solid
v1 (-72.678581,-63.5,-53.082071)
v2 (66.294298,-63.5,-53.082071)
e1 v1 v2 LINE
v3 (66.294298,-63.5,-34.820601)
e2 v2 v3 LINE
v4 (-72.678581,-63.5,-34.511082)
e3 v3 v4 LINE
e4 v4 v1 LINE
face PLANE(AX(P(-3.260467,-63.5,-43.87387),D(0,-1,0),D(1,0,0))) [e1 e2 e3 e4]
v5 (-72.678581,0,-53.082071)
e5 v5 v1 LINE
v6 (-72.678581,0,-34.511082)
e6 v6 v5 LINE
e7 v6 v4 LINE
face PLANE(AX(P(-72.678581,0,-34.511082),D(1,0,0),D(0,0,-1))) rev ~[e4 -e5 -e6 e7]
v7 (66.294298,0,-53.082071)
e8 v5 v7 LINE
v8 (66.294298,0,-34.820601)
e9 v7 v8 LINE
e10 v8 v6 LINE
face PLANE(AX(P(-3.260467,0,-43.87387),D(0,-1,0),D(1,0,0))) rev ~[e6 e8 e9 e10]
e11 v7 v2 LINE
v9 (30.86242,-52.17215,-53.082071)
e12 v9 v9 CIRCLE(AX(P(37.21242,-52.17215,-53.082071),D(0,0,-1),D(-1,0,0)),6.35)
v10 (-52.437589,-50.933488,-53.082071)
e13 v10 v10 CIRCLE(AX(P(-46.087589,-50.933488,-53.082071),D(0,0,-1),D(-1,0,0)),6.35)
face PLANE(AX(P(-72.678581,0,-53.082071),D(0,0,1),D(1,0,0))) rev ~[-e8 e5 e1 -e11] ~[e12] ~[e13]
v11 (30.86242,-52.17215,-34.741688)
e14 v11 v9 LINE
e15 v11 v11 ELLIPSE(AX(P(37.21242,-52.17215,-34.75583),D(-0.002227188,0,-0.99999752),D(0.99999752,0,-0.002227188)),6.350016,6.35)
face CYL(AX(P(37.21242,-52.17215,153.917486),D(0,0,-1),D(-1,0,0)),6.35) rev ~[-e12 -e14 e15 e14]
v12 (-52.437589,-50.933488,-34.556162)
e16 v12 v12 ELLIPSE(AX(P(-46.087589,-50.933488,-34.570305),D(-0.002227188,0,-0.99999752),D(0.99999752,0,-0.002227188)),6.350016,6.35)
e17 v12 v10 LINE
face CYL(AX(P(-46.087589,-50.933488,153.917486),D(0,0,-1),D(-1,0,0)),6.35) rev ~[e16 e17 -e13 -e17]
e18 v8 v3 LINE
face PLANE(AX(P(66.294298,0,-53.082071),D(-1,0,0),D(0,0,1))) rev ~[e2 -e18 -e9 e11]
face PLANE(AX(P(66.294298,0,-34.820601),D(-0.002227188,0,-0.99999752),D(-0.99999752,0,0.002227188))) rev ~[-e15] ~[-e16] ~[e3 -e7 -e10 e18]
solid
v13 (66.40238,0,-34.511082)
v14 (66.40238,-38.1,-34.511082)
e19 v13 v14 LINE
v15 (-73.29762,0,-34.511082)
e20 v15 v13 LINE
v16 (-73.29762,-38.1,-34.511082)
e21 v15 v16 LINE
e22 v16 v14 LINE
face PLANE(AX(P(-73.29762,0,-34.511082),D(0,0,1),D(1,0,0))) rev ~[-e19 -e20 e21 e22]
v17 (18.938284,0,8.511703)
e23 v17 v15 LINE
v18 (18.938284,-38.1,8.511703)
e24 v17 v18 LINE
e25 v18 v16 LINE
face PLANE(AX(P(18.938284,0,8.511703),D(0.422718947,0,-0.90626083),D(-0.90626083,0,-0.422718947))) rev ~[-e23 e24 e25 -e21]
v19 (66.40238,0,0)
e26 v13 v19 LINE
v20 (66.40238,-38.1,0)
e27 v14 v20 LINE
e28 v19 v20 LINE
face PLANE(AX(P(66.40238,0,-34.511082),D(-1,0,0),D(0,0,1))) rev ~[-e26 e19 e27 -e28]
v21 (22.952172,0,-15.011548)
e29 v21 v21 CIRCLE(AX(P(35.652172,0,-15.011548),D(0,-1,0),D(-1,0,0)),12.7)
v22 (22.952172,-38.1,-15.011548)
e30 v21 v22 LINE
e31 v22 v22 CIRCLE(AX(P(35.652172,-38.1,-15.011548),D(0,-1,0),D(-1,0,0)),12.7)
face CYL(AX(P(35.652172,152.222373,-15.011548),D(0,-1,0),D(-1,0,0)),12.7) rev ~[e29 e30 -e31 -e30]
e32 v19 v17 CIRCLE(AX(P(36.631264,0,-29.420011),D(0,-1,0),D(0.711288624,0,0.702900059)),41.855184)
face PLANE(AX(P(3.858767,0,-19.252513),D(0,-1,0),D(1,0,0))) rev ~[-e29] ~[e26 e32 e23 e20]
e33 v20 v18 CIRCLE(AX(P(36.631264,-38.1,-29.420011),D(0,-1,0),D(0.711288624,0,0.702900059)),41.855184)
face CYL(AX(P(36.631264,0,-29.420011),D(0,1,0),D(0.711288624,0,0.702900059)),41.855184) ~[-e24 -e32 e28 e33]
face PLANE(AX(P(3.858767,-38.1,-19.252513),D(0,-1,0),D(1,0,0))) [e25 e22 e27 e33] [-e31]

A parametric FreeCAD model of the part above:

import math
import FreeCAD as App
import Part
import Sketcher
Q = App.Units.Quantity

doc = App.newDocument("Part")
body = doc.addObject("PartDesign::Body", "Body")

sketch1 = doc.addObject("Sketcher::SketchObject", "Sketch")
body.addObject(sketch1)
sketch1.AttachmentSupport = (doc.XZ_Plane, [""])
sketch1.MapMode = "FlatFace"
sketch1.addGeometry([
    Part.LineSegment(App.Vector(19, 9, 0), App.Vector(-73, -35, 0)),
    Part.LineSegment(App.Vector(-73, -35, 0), App.Vector(66, -35, 0)),
    Part.LineSegment(App.Vector(66, -35, 0), App.Vector(66, 0, 0)),
    Part.ArcOfCircle(Part.Circle(App.Vector(37, -29, 0), App.Vector(0, 0, 1), 42), math.radians(45), math.radians(115)),
], False)
sketch1.addConstraint([
    Sketcher.Constraint("Coincident", 0, 2, 1, 1),
    Sketcher.Constraint("Coincident", 1, 2, 2, 1),
    Sketcher.Constraint("Coincident", 2, 2, 3, 1),
    Sketcher.Constraint("Tangent", 3, 2, 0, 1),
    Sketcher.Constraint("Horizontal", 1),
    Sketcher.Constraint("Vertical", 2),
    Sketcher.Constraint("PointOnObject", 2, 2, -1),
    Sketcher.Constraint("DistanceX", 1, 1, 1, 2, Q("5.5 in")),
    Sketcher.Constraint("Radius", 3, 41.855184),
    Sketcher.Constraint("DistanceY", 2, 1, 2, 2, 34.511082),
    Sketcher.Constraint("DistanceY", 3, 3, -1, 1, 29.420011),
    Sketcher.Constraint("DistanceX", 0, 2, -1, 1, 73.29762),
])
pad1 = doc.addObject("PartDesign::Pad", "Pad")
body.addObject(pad1)
pad1.Profile = sketch1
pad1.Length = Q("1.5 in")

sketch2 = doc.addObject("Sketcher::SketchObject", "Sketch001")
body.addObject(sketch2)
sketch2.AttachmentSupport = (doc.XZ_Plane, [""])
sketch2.MapMode = "FlatFace"
sketch2.addGeometry(Part.Circle(App.Vector(36, -15, 0), App.Vector(0, 0, 1), 13), False)
sketch2.addConstraint([
    Sketcher.Constraint("Diameter", 0, Q("1 in")),
    Sketcher.Constraint("DistanceX", -1, 1, 0, 3, 35.652172),
    Sketcher.Constraint("DistanceY", 0, 3, -1, 1, 15.011548),
])
doc.recompute()
hole = doc.addObject("PartDesign::Hole", "Hole")
body.addObject(hole)
hole.Profile = sketch2
hole.ThreadType = "None"
hole.Diameter = Q("1 in")
hole.DepthType = "ThroughAll"
hole.Reversed = True
body2 = doc.addObject("PartDesign::Body", "Body001")

sketch3 = doc.addObject("Sketcher::SketchObject", "Sketch002")
body2.addObject(sketch3)
sketch3.AttachmentSupport = (doc.getObject("XZ_Plane001"), [""])
sketch3.MapMode = "FlatFace"
sketch3.addGeometry([
    Part.LineSegment(App.Vector(66, -53, 0), App.Vector(66, -35, 0)),
    Part.LineSegment(App.Vector(66, -35, 0), App.Vector(-73, -35, 0)),
    Part.LineSegment(App.Vector(-73, -35, 0), App.Vector(-73, -53, 0)),
    Part.LineSegment(App.Vector(-73, -53, 0), App.Vector(66, -53, 0)),
], False)
sketch3.addConstraint([
    Sketcher.Constraint("Coincident", 0, 2, 1, 1),
    Sketcher.Constraint("Coincident", 1, 2, 2, 1),
    Sketcher.Constraint("Coincident", 2, 2, 3, 1),
    Sketcher.Constraint("Coincident", 3, 2, 0, 1),
    Sketcher.Constraint("Vertical", 0),
    Sketcher.Constraint("Vertical", 2),
    Sketcher.Constraint("Horizontal", 3),
    Sketcher.Constraint("DistanceX", 3, 1, 3, 2, 138.972878),
    Sketcher.Constraint("DistanceY", 0, 1, 0, 2, 18.26147),
    Sketcher.Constraint("DistanceY", 2, 2, 2, 1, 18.570989),
    Sketcher.Constraint("DistanceY", 0, 2, -1, 1, 34.820601),
    Sketcher.Constraint("DistanceX", 1, 2, -1, 1, 72.678581),
])
pad2 = doc.addObject("PartDesign::Pad", "Pad001")
body2.addObject(pad2)
pad2.Profile = sketch3
pad2.Length = Q("2.5 in")

sketch4 = doc.addObject("Sketcher::SketchObject", "Sketch003")
body2.addObject(sketch4)
sketch4.AttachmentSupport = (doc.getObject("XY_Plane001"), [""])
sketch4.MapMode = "FlatFace"
sketch4.addGeometry(Part.Circle(App.Vector(-46, -51, 0), App.Vector(0, 0, 1), 6), False)
sketch4.addConstraint([
    Sketcher.Constraint("Diameter", 0, Q("0.5 in")),
    Sketcher.Constraint("DistanceX", 0, 3, -1, 1, 46.087589),
    Sketcher.Constraint("DistanceY", 0, 3, -1, 1, 50.933488),
])
doc.recompute()
hole2 = doc.addObject("PartDesign::Hole", "Hole001")
body2.addObject(hole2)
hole2.Profile = sketch4
hole2.ThreadType = "None"
hole2.Diameter = Q("0.5 in")
hole2.DepthType = "ThroughAll"

sketch5 = doc.addObject("Sketcher::SketchObject", "Sketch004")
body2.addObject(sketch5)
sketch5.AttachmentSupport = (doc.getObject("XY_Plane001"), [""])
sketch5.MapMode = "FlatFace"
sketch5.addGeometry(Part.Circle(App.Vector(37, -52, 0), App.Vector(0, 0, 1), 6), False)
sketch5.addConstraint([
    Sketcher.Constraint("Diameter", 0, Q("0.5 in")),
    Sketcher.Constraint("DistanceX", -1, 1, 0, 3, 37.21242),
    Sketcher.Constraint("DistanceY", 0, 3, -1, 1, 52.17215),
])
doc.recompute()
hole3 = doc.addObject("PartDesign::Hole", "Hole002")
body2.addObject(hole3)
hole3.Profile = sketch5
hole3.ThreadType = "None"
hole3.Diameter = Q("0.5 in")
hole3.DepthType = "ThroughAll"

doc.recompute()
